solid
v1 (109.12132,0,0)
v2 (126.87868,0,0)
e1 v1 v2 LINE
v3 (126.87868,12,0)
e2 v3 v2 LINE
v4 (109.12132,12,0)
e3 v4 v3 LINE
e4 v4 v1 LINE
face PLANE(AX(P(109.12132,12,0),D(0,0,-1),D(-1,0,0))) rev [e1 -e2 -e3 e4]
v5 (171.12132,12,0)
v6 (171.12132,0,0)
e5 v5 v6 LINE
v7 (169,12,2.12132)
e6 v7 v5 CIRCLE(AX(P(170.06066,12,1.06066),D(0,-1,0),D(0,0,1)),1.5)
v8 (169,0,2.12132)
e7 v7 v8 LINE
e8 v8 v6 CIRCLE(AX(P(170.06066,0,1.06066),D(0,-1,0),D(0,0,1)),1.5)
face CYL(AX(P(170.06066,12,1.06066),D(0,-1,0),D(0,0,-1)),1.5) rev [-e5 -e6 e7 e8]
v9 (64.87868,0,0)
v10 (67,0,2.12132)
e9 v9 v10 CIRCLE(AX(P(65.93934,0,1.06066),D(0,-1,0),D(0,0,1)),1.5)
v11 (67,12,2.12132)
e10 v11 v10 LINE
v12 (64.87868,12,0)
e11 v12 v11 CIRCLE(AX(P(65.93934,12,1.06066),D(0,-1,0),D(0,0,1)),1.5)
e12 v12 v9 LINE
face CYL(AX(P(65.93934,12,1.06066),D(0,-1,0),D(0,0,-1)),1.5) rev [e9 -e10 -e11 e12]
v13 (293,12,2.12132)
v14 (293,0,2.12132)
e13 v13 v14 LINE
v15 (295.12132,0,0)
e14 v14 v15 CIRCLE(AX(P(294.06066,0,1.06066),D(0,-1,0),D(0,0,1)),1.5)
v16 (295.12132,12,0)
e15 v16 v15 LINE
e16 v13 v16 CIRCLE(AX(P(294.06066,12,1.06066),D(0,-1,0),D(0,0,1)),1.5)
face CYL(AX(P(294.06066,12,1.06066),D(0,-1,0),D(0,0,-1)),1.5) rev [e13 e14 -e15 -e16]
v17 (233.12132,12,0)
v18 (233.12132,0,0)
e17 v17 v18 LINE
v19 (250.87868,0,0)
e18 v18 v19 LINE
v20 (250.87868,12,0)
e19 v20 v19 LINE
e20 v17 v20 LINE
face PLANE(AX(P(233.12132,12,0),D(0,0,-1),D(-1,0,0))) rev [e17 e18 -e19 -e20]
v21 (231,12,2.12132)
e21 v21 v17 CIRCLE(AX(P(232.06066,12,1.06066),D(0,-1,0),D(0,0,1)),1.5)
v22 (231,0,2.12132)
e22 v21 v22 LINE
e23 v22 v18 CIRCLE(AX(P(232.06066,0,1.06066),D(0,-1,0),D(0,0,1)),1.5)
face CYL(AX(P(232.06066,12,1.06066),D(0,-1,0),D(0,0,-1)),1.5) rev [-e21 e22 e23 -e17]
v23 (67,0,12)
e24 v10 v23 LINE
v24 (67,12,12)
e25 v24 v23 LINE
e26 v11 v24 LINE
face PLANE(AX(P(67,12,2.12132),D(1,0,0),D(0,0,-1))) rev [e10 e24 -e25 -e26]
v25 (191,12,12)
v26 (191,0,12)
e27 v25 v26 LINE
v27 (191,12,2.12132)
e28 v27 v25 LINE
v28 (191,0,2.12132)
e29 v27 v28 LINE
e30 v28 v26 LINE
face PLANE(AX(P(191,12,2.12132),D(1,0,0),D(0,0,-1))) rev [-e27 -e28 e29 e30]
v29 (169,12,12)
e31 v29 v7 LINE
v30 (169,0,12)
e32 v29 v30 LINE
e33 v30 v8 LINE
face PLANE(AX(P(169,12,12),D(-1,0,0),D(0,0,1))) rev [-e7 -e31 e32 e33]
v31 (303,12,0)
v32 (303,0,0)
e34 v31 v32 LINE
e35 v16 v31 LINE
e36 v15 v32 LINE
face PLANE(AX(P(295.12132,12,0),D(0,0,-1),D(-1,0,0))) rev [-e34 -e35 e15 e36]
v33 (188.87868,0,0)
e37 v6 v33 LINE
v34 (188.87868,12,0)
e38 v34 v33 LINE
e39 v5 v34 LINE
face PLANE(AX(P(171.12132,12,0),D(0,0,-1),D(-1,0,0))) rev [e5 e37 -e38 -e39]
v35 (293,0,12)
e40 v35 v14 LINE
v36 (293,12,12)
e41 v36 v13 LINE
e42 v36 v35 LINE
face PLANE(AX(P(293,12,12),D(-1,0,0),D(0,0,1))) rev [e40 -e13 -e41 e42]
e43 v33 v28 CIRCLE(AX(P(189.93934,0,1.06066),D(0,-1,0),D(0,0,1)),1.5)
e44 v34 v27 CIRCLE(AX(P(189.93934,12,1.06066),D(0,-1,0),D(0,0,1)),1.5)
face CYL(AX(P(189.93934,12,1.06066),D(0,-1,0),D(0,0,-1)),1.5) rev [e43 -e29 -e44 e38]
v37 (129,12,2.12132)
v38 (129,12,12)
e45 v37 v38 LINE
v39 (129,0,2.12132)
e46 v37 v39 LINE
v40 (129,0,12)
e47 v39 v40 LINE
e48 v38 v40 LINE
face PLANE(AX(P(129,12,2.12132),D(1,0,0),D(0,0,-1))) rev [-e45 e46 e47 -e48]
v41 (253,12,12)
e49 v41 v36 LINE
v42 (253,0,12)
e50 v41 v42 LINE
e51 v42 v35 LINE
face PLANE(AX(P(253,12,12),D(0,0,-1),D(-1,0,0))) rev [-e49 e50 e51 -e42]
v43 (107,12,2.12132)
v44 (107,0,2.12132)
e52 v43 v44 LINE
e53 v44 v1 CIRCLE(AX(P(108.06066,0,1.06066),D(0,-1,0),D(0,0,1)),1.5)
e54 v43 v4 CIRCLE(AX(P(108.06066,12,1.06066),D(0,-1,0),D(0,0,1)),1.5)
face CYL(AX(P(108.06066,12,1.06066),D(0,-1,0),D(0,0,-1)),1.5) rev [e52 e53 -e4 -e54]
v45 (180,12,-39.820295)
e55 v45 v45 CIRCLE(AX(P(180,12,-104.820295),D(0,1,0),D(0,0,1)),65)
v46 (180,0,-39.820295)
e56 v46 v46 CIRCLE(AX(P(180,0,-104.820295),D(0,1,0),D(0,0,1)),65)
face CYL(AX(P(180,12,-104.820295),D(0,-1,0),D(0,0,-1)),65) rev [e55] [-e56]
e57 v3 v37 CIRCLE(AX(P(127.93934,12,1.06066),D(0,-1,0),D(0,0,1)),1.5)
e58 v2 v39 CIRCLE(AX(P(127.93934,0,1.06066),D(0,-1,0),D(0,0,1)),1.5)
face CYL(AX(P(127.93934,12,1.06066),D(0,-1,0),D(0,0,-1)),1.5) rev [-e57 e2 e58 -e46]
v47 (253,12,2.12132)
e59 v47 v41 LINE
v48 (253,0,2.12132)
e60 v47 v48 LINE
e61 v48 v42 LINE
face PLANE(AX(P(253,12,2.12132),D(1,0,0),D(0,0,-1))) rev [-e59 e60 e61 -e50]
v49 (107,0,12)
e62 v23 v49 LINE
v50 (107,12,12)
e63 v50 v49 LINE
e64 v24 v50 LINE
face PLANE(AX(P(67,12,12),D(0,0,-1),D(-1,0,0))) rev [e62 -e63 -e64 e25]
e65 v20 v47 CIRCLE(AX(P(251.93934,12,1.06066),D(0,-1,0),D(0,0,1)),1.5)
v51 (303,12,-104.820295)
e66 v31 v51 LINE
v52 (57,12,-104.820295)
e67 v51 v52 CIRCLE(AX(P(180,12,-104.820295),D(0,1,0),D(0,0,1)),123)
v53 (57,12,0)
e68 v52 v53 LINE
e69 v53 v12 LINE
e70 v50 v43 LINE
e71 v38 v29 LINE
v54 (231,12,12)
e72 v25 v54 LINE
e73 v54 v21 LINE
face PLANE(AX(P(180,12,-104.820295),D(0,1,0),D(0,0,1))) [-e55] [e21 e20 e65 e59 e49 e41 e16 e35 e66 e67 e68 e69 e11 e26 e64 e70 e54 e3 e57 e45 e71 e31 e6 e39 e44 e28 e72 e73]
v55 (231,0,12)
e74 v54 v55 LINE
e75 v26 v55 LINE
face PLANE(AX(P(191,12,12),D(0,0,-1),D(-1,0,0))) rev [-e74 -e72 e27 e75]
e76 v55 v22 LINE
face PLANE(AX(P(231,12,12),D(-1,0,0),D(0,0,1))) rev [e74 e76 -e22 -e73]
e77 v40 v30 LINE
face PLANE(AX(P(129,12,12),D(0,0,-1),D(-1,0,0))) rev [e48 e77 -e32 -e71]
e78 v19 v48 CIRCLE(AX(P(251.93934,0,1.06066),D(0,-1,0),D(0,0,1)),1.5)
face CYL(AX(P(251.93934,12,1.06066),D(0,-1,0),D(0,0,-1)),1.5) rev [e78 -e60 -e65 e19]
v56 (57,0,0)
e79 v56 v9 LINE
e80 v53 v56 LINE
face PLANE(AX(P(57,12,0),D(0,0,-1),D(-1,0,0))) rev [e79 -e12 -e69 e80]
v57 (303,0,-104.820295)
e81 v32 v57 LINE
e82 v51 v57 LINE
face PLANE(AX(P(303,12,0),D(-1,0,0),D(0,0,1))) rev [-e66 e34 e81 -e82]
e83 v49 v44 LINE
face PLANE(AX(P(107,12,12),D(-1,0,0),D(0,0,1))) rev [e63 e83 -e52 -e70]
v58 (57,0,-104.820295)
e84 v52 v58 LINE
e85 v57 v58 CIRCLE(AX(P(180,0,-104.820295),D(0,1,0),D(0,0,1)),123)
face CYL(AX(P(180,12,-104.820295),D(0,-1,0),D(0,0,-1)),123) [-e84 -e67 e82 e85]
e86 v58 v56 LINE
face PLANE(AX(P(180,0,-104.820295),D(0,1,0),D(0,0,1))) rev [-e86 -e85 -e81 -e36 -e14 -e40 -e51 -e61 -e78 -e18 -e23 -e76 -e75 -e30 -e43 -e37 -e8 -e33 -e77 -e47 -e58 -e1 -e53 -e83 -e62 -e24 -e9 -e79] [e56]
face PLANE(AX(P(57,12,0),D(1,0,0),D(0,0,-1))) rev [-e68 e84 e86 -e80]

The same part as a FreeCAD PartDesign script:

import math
import FreeCAD as App
import Part
import Sketcher
from FreeCAD import Vector
Q = App.Units.Quantity

doc = App.newDocument("Part")
body = doc.addObject("PartDesign::Body", "Body")

# Sketch on XZ plane
sketch1 = body.newObject("Sketcher::SketchObject", "Sketch")
sketch1.AttachmentSupport = (doc.getObject("XZ_Plane"), [""])
sketch1.MapMode = "FlatFace"
sketch1.addGeometry([
    Part.LineSegment(Vector(57, -104.8, 0), Vector(57, 0, 0)),  # 0
    Part.LineSegment(Vector(57, 0, 0), Vector(64.9, 0, 0)),  # 1
    Part.ArcOfCircle(Part.Circle(Vector(65.9, 1.1, 0), Vector(0, 0, 1), 1.5), math.radians(-135), math.radians(45)),  # 2
    Part.LineSegment(Vector(67, 2.1, 0), Vector(67, 12, 0)),  # 3
    Part.LineSegment(Vector(67, 12, 0), Vector(107, 12, 0)),  # 4
    Part.LineSegment(Vector(107, 12, 0), Vector(107, 2.1, 0)),  # 5
    Part.ArcOfCircle(Part.Circle(Vector(108.1, 1.1, 0), Vector(0, 0, 1), 1.5), math.radians(135), math.radians(315)),  # 6
    Part.LineSegment(Vector(109.1, 0, 0), Vector(126.9, 0, 0)),  # 7
    Part.ArcOfCircle(Part.Circle(Vector(127.9, 1.1, 0), Vector(0, 0, 1), 1.5), math.radians(-135), math.radians(45)),  # 8
    Part.LineSegment(Vector(129, 2.1, 0), Vector(129, 12, 0)),  # 9
    Part.LineSegment(Vector(129, 12, 0), Vector(169, 12, 0)),  # 10
    Part.LineSegment(Vector(169, 12, 0), Vector(169, 2.1, 0)),  # 11
    Part.ArcOfCircle(Part.Circle(Vector(170.1, 1.1, 0), Vector(0, 0, 1), 1.5), math.radians(135), math.radians(315)),  # 12
    Part.LineSegment(Vector(171.1, 0, 0), Vector(188.9, 0, 0)),  # 13
    Part.ArcOfCircle(Part.Circle(Vector(189.9, 1.1, 0), Vector(0, 0, 1), 1.5), math.radians(-135), math.radians(45)),  # 14
    Part.LineSegment(Vector(191, 2.1, 0), Vector(191, 12, 0)),  # 15
    Part.LineSegment(Vector(191, 12, 0), Vector(231, 12, 0)),  # 16
    Part.LineSegment(Vector(231, 12, 0), Vector(231, 2.1, 0)),  # 17
    Part.ArcOfCircle(Part.Circle(Vector(232.1, 1.1, 0), Vector(0, 0, 1), 1.5), math.radians(135), math.radians(315)),  # 18
    Part.LineSegment(Vector(233.1, 0, 0), Vector(250.9, 0, 0)),  # 19
    Part.ArcOfCircle(Part.Circle(Vector(251.9, 1.1, 0), Vector(0, 0, 1), 1.5), math.radians(-135), math.radians(45)),  # 20
    Part.LineSegment(Vector(253, 2.1, 0), Vector(253, 12, 0)),  # 21
    Part.LineSegment(Vector(253, 12, 0), Vector(293, 12, 0)),  # 22
    Part.LineSegment(Vector(293, 12, 0), Vector(293, 2.1, 0)),  # 23
    Part.ArcOfCircle(Part.Circle(Vector(294.1, 1.1, 0), Vector(0, 0, 1), 1.5), math.radians(135), math.radians(315)),  # 24
    Part.LineSegment(Vector(295.1, 0, 0), Vector(303, 0, 0)),  # 25
    Part.LineSegment(Vector(303, 0, 0), Vector(303, -104.8, 0)),  # 26
    Part.ArcOfCircle(Part.Circle(Vector(180, -104.8, 0), Vector(0, 0, 1), 123), math.radians(180), math.radians(360)),  # 27
    Part.Circle(Vector(180, -104.8, 0), Vector(0, 0, 1), 65),  # 28
], False)
sketch1.addConstraint([
    Sketcher.Constraint("Coincident", 0, 2, 1, 1),
    Sketcher.Constraint("Coincident", 1, 2, 2, 1),
    Sketcher.Constraint("Coincident", 2, 2, 3, 1),
    Sketcher.Constraint("Coincident", 3, 2, 4, 1),
    Sketcher.Constraint("Coincident", 4, 2, 5, 1),
    Sketcher.Constraint("Coincident", 5, 2, 6, 1),
    Sketcher.Constraint("Coincident", 6, 2, 7, 1),
    Sketcher.Constraint("Coincident", 7, 2, 8, 1),
    Sketcher.Constraint("Coincident", 8, 2, 9, 1),
    Sketcher.Constraint("Coincident", 9, 2, 10, 1),
    Sketcher.Constraint("Coincident", 10, 2, 11, 1),
    Sketcher.Constraint("Coincident", 11, 2, 12, 1),
    Sketcher.Constraint("Coincident", 12, 2, 13, 1),
    Sketcher.Constraint("Coincident", 13, 2, 14, 1),
    Sketcher.Constraint("Coincident", 14, 2, 15, 1),
    Sketcher.Constraint("Coincident", 15, 2, 16, 1),
    Sketcher.Constraint("Coincident", 16, 2, 17, 1),
    Sketcher.Constraint("Coincident", 17, 2, 18, 1),
    Sketcher.Constraint("Coincident", 18, 2, 19, 1),
    Sketcher.Constraint("Coincident", 19, 2, 20, 1),
    Sketcher.Constraint("Coincident", 20, 2, 21, 1),
    Sketcher.Constraint("Coincident", 21, 2, 22, 1),
    Sketcher.Constraint("Coincident", 22, 2, 23, 1),
    Sketcher.Constraint("Coincident", 23, 2, 24, 1),
    Sketcher.Constraint("Coincident", 24, 2, 25, 1),
    Sketcher.Constraint("Coincident", 25, 2, 26, 1),
    Sketcher.Constraint("Tangent", 26, 2, 27, 2),
    Sketcher.Constraint("Tangent", 27, 1, 0, 1),
    Sketcher.Constraint("Vertical", 0),
    Sketcher.Constraint("Horizontal", 1),
    Sketcher.Constraint("Vertical", 3),
    Sketcher.Constraint("Horizontal", 4),
    Sketcher.Constraint("Vertical", 5),
    Sketcher.Constraint("Horizontal", 7),
    Sketcher.Constraint("Vertical", 9),
    Sketcher.Constraint("Horizontal", 10),
    Sketcher.Constraint("Vertical", 11),
    Sketcher.Constraint("Horizontal", 13),
    Sketcher.Constraint("Vertical", 15),
    Sketcher.Constraint("Horizontal", 16),
    Sketcher.Constraint("Vertical", 17),
    Sketcher.Constraint("Horizontal", 19),
    Sketcher.Constraint("Vertical", 21),
    Sketcher.Constraint("Horizontal", 22),
    Sketcher.Constraint("Vertical", 23),
    Sketcher.Constraint("Horizontal", 25),
    Sketcher.Constraint("Vertical", 26),
    Sketcher.Constraint("Coincident", 28, 3, 27, 3),
    Sketcher.Constraint("Equal", 2, 6),
    Sketcher.Constraint("Equal", 6, 8),
    Sketcher.Constraint("Equal", 8, 12),
    Sketcher.Constraint("Equal", 12, 14),
    Sketcher.Constraint("Equal", 14, 18),
    Sketcher.Constraint("Equal", 18, 20),
    Sketcher.Constraint("Equal", 20, 24),
    Sketcher.Constraint("PointOnObject", 0, 2, -1),
    Sketcher.Constraint("PointOnObject", 6, 2, -1),
    Sketcher.Constraint("PointOnObject", 12, 2, -1),
    Sketcher.Constraint("PointOnObject", 18, 2, -1),
    Sketcher.Constraint("PointOnObject", 24, 2, -1),
    Sketcher.Constraint("Horizontal", 2, 3, 6, 3),
    Sketcher.Constraint("Horizontal", 6, 3, 8, 3),
    Sketcher.Constraint("Horizontal", 8, 3, 12, 3),
    Sketcher.Constraint("Horizontal", 12, 3, 14, 3),
    Sketcher.Constraint("Horizontal", 14, 3, 18, 3),
    Sketcher.Constraint("Horizontal", 18, 3, 20, 3),
    Sketcher.Constraint("Horizontal", 20, 3, 24, 3),
    Sketcher.Constraint("Horizontal", 2, 2, 5, 2),
    Sketcher.Constraint("Horizontal", 5, 2, 8, 2),
    Sketcher.Constraint("Horizontal", 4, 2, 9, 2),
    Sketcher.Constraint("Horizontal", 8, 2, 11, 2),
    Sketcher.Constraint("Horizontal", 11, 2, 14, 2),
    Sketcher.Constraint("Horizontal", 10, 2, 15, 2),
    Sketcher.Constraint("Horizontal", 14, 2, 17, 2),
    Sketcher.Constraint("Horizontal", 17, 2, 20, 2),
    Sketcher.Constraint("Horizontal", 16, 2, 21, 2),
    Sketcher.Constraint("Horizontal", 20, 2, 23, 2),
    Sketcher.Constraint("Equal", 4, 10),
    Sketcher.Constraint("Equal", 7, 13),
    Sketcher.Constraint("Equal", 10, 16),
    Sketcher.Constraint("Equal", 13, 19),
    Sketcher.Constraint("Equal", 16, 22),
    Sketcher.Constraint("Equal", 1, 25),
    Sketcher.Constraint("Diameter", 28, Q("130 mm")),
    Sketcher.Constraint("Radius", 27, Q("123 mm")),
    Sketcher.Constraint("Radius", 2, Q("1.5 mm")),
    Sketcher.Constraint("DistanceX", 4, 1, 4, 2, Q("40 mm")),
    Sketcher.Constraint("DistanceX", -1, 1, 27, 3, Q("180 mm")),
    Sketcher.Constraint("DistanceX", -1, 1, 2, 2, Q("67 mm")),
    Sketcher.Constraint("DistanceY", -1, 1, 3, 2, Q("12 mm")),
    Sketcher.Constraint("DistanceX", 1, 1, 1, 2, Q("7.87868 mm")),
    Sketcher.Constraint("DistanceY", 0, 1, 0, 2, Q("104.820295 mm")),
    Sketcher.Constraint("DistanceX", -1, 1, 2, 3, Q("65.93934 mm")),
])
pad1 = body.newObject("PartDesign::Pad", "Pad")
pad1.Profile = sketch1
pad1.Length = 12
pad1.Reversed = True

doc.recompute()
